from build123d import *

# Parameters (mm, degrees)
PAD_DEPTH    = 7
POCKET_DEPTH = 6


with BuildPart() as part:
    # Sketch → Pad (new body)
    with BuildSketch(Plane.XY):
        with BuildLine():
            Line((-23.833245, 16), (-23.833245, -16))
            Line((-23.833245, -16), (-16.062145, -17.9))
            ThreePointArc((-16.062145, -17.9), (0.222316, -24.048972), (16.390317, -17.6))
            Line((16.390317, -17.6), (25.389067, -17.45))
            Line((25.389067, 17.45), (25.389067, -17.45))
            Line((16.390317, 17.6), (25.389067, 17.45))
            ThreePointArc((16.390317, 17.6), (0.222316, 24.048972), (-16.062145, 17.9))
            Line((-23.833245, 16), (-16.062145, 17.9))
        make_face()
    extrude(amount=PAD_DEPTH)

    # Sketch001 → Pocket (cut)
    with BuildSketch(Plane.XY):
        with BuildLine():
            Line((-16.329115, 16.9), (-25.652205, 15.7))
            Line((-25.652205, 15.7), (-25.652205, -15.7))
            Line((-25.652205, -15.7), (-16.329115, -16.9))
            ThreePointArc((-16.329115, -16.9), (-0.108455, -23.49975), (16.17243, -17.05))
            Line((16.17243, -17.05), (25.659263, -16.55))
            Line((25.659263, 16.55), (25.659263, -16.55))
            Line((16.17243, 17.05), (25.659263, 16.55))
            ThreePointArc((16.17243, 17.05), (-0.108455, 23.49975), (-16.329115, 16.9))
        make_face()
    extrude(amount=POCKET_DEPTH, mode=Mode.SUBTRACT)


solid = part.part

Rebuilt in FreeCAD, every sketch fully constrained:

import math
import FreeCAD as App
import Part
import Sketcher
from FreeCAD import Vector

doc = App.newDocument("Part")
body = doc.addObject("PartDesign::Body", "Body")

sketch1 = doc.addObject("Sketcher::SketchObject", "Sketch")
body.addObject(sketch1)
sketch1.AttachmentSupport = (doc.XY_Plane, [""])
sketch1.MapMode = "FlatFace"
sketch1.addGeometry([
    Part.LineSegment(Vector(-23.833245, 16, 0), Vector(-23.833245, -16, 0)),
    Part.LineSegment(Vector(-23.833245, -16, 0), Vector(-16.062145, -17.9, 0)),
    Part.ArcOfCircle(Part.Circle(Vector(0, 0.000001, 0), Vector(0, 0, 1), 24.050001), math.radians(-131.902468), math.radians(-47.038244)),
    Part.LineSegment(Vector(16.390317, -17.6, 0), Vector(25.389067, -17.45, 0)),
    Part.LineSegment(Vector(25.389067, -17.45, 0), Vector(25.389067, 17.45, 0)),
    Part.LineSegment(Vector(25.389067, 17.45, 0), Vector(16.390317, 17.6, 0)),
    Part.ArcOfCircle(Part.Circle(Vector(0, -0.000001, 0), Vector(0, 0, 1), 24.050001), math.radians(47.038244), math.radians(131.902468)),
    Part.LineSegment(Vector(-16.062145, 17.9, 0), Vector(-23.833245, 16, 0)),
], False)
sketch1.addConstraint([
    Sketcher.Constraint("Coincident", 0, 2, 1, 1),
    Sketcher.Constraint("Coincident", 1, 2, 2, 1),
    Sketcher.Constraint("Coincident", 2, 2, 3, 1),
    Sketcher.Constraint("Coincident", 3, 2, 4, 1),
    Sketcher.Constraint("Coincident", 4, 2, 5, 1),
    Sketcher.Constraint("Coincident", 5, 2, 6, 1),
    Sketcher.Constraint("Coincident", 6, 2, 7, 1),
    Sketcher.Constraint("Coincident", 7, 2, 0, 1),
    Sketcher.Constraint("Vertical", 0),
    Sketcher.Constraint("Vertical", 4),
    Sketcher.Constraint("Coincident", 2, 3, -1, 1),
    Sketcher.Constraint("Coincident", 6, 3, -1, 1),
    Sketcher.Constraint("Equal", 2, 6),
    Sketcher.Constraint("Vertical", 2, 2, 5, 2),
    Sketcher.Constraint("Vertical", 1, 2, 6, 2),
    Sketcher.Constraint("Equal", 3, 5),
    Sketcher.Constraint("Equal", 1, 7),
    Sketcher.Constraint("DistanceY", 0, 2, 0, 1, 32.0),
    Sketcher.Constraint("Radius", 2, 24.050001),
    Sketcher.Constraint("Distance", 1, 8.0),
    Sketcher.Constraint("Distance", 3, 9.0),
    Sketcher.Constraint("DistanceY", 4, 1, 4, 2, 34.9),
    Sketcher.Constraint("DistanceY", 1, 2, -1, 1, 17.9),
    Sketcher.Constraint("DistanceY", 2, 2, -1, 1, 17.6),
])
pad1 = doc.addObject("PartDesign::Pad", "Pad")
body.addObject(pad1)
pad1.Profile = sketch1
pad1.Length = 7

sketch2 = doc.addObject("Sketcher::SketchObject", "Sketch001")
body.addObject(sketch2)
sketch2.AttachmentSupport = (doc.XY_Plane, [""])
sketch2.MapMode = "FlatFace"
sketch2.addGeometry([
    Part.LineSegment(Vector(-16.329115, 16.9, 0), Vector(-25.652205, 15.7, 0)),
    Part.LineSegment(Vector(-25.652205, 15.7, 0), Vector(-25.652205, -15.7, 0)),
    Part.LineSegment(Vector(-25.652205, -15.7, 0), Vector(-16.329115, -16.9, 0)),
    Part.ArcOfCircle(Part.Circle(Vector(0, -0.000001, 0), Vector(0, 0, 1), 23.499999), math.radians(-134.015742), math.radians(-46.513113)),
    Part.LineSegment(Vector(16.17243, -17.05, 0), Vector(25.659263, -16.55, 0)),
    Part.LineSegment(Vector(25.659263, -16.55, 0), Vector(25.659263, 16.55, 0)),
    Part.LineSegment(Vector(25.659263, 16.55, 0), Vector(16.17243, 17.05, 0)),
    Part.ArcOfCircle(Part.Circle(Vector(0, 0.000001, 0), Vector(0, 0, 1), 23.499999), math.radians(46.513113), math.radians(134.015742)),
], False)
sketch2.addConstraint([
    Sketcher.Constraint("Coincident", 0, 2, 1, 1),
    Sketcher.Constraint("Coincident", 1, 2, 2, 1),
    Sketcher.Constraint("Coincident", 2, 2, 3, 1),
    Sketcher.Constraint("Coincident", 3, 2, 4, 1),
    Sketcher.Constraint("Coincident", 4, 2, 5, 1),
    Sketcher.Constraint("Coincident", 5, 2, 6, 1),
    Sketcher.Constraint("Coincident", 6, 2, 7, 1),
    Sketcher.Constraint("Coincident", 7, 2, 0, 1),
    Sketcher.Constraint("Vertical", 1),
    Sketcher.Constraint("Vertical", 5),
    Sketcher.Constraint("Coincident", 3, 3, -1, 1),
    Sketcher.Constraint("Coincident", 7, 3, -1, 1),
    Sketcher.Constraint("Equal", 3, 7),
    Sketcher.Constraint("Vertical", 3, 2, 6, 2),
    Sketcher.Constraint("Vertical", 2, 2, 7, 2),
    Sketcher.Constraint("Equal", 0, 2),
    Sketcher.Constraint("Equal", 4, 6),
    Sketcher.Constraint("Radius", 3, 23.499999),
    Sketcher.Constraint("DistanceY", 1, 2, 1, 1, 31.4),
    Sketcher.Constraint("DistanceY", 5, 1, 5, 2, 33.1),
    Sketcher.Constraint("Distance", 0, 9.4),
    Sketcher.Constraint("Distance", 4, 9.5),
    Sketcher.Constraint("DistanceY", 2, 2, -1, 1, 16.9),
    Sketcher.Constraint("DistanceY", 3, 2, 4, 2, 0.5),
])
pocket1 = doc.addObject("PartDesign::Pocket", "Pocket")
body.addObject(pocket1)
pocket1.Profile = sketch2
pocket1.Length = 6
pocket1.Reversed = True

doc.recompute()
